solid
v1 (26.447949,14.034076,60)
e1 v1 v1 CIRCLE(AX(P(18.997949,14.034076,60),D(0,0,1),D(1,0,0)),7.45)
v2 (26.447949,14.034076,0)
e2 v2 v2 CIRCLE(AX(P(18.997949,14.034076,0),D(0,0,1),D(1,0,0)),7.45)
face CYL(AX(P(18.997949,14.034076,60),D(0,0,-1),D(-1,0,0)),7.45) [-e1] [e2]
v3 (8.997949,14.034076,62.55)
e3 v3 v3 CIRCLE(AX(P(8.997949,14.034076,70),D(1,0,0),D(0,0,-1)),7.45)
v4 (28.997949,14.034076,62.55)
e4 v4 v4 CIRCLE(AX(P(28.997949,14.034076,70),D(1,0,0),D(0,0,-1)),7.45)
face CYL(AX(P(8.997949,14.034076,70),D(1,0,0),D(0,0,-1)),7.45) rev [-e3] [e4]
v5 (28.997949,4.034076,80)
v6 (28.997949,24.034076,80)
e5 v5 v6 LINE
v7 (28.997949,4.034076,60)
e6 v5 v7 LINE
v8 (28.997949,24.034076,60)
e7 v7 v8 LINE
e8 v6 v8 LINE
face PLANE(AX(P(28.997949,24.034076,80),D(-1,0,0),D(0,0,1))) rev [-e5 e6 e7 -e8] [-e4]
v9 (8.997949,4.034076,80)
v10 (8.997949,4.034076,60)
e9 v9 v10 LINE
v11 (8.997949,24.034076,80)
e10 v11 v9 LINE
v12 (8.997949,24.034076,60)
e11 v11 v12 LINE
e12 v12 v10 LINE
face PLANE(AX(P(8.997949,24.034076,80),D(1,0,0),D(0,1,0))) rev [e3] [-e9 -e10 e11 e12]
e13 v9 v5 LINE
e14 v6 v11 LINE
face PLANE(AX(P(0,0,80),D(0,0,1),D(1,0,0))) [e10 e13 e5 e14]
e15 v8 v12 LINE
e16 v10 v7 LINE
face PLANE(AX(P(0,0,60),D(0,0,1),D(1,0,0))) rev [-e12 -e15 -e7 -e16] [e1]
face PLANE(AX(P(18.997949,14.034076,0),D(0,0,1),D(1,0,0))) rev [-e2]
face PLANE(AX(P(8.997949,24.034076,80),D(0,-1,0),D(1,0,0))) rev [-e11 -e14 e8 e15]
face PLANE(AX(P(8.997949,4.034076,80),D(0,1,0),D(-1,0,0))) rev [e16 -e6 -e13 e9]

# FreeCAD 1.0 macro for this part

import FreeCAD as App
import Part
import Sketcher
Q = App.Units.Quantity


def add_polygon(sketch, points):
    """Adds a closed chain of lines whose ends are joined by coincident constraints."""
    first, n = sketch.GeometryCount, len(points)
    for a, b in zip(points, points[1:] + points[:1]):
        sketch.addGeometry(Part.LineSegment(App.Vector(*a, 0), App.Vector(*b, 0)), False)
    for i in range(n):
        sketch.addConstraint(Sketcher.Constraint("Coincident", first + i, 2, first + (i + 1) % n, 1))

doc = App.newDocument("Part")
body = doc.addObject("PartDesign::Body", "Body")

# Sketch on XY plane
sketch1 = body.newObject("Sketcher::SketchObject", "Sketch")
sketch1.AttachmentSupport = (doc.getObject("XY_Plane"), [""])
sketch1.MapMode = "FlatFace"
sketch1.addGeometry(Part.Circle(App.Vector(19, 14, 0), App.Vector(0, 0, 1), 7), False)
sketch1.addConstraint([
    Sketcher.Constraint("Diameter", 0, Q("14.9 mm")),
    Sketcher.Constraint("DistanceX", -1, 1, 0, 3, Q("18.997949 mm")),
    Sketcher.Constraint("DistanceY", -1, 1, 0, 3, Q("14.034076 mm")),
])
pad1 = body.newObject("PartDesign::Pad", "Pad")
pad1.Profile = sketch1
pad1.Length = 60

# Sketch on XY plane
sketch2 = body.newObject("Sketcher::SketchObject", "Sketch001")
sketch2.AttachmentSupport = (doc.getObject("XY_Plane"), [""])
sketch2.MapMode = "FlatFace"
sketch2.AttachmentOffset = App.Placement(App.Vector(0, 0, 60), App.Rotation())
add_polygon(sketch2, [(9, 24), (9, 4), (29, 4), (29, 24)])  # lines 0-3
sketch2.addConstraint([
    Sketcher.Constraint("Vertical", 0),
    Sketcher.Constraint("Horizontal", 1),
    Sketcher.Constraint("Vertical", 2),
    Sketcher.Constraint("Horizontal", 3),
    Sketcher.Constraint("Equal", 3, 0),
    Sketcher.Constraint("DistanceX", 1, 1, 1, 2, Q("20 mm")),
    Sketcher.Constraint("DistanceX", -1, 1, 0, 2, Q("8.997949 mm")),
    Sketcher.Constraint("DistanceY", -1, 1, 0, 2, Q("4.034076 mm")),
])
pad2 = body.newObject("PartDesign::Pad", "Pad001")
pad2.Profile = sketch2
pad2.Length = 20

# Sketch on YZ plane
sketch3 = body.newObject("Sketcher::SketchObject", "Sketch002")
sketch3.AttachmentSupport = (doc.getObject("YZ_Plane"), [""])
sketch3.MapMode = "FlatFace"
sketch3.AttachmentOffset = App.Placement(App.Vector(0, 0, 28.997949), App.Rotation())
sketch3.addGeometry(Part.Circle(App.Vector(14, 70, 0), App.Vector(0, 0, 1), 7), False)
sketch3.addConstraint([
    Sketcher.Constraint("Diameter", 0, Q("14.9 mm")),
    Sketcher.Constraint("DistanceY", -1, 1, 0, 3, Q("70 mm")),
    Sketcher.Constraint("DistanceX", -1, 1, 0, 3, Q("14.034076 mm")),
])
pocket1 = body.newObject("PartDesign::Pocket", "Pocket")
pocket1.Profile = sketch3
pocket1.Type = "ThroughAll"

doc.recompute()
